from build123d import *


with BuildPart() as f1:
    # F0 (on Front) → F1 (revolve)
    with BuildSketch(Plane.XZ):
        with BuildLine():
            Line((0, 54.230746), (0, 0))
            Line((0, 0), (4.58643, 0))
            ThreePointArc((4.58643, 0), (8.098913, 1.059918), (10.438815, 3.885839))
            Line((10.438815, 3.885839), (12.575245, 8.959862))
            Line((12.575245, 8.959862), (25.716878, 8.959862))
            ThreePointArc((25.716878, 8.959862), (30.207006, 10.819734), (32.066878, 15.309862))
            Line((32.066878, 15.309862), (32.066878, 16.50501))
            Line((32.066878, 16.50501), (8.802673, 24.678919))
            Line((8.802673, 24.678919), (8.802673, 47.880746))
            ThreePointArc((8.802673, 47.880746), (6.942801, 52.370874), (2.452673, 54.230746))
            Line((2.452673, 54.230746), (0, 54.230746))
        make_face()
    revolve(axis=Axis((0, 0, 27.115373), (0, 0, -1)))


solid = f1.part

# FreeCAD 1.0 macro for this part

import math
import FreeCAD as App
import Part
import Sketcher
Q = App.Units.Quantity

doc = App.newDocument("Part")
params = doc.addObject("Spreadsheet::Sheet", "Params")
for row, (alias, value) in enumerate([
    ("sketch1_radius", "0.2499999 in"),
    ("sketch1_radius2", "0.25 in"),
    ("revolution_angle", "360 deg"),
], start=1):
    params.set(f"A{row}", alias)
    params.set(f"B{row}", "=" + value)
    params.setAlias(f"B{row}", alias)

body = doc.addObject("PartDesign::Body", "Body")

sketch1 = body.newObject("Sketcher::SketchObject", "Sketch")
sketch1.AttachmentSupport = (doc.getObject("XZ_Plane"), [""])
sketch1.MapMode = "FlatFace"
sketch1.addGeometry([
    Part.LineSegment(App.Vector(0, 54.2, 0), App.Vector(0, 0, 0)),
    Part.LineSegment(App.Vector(0, 0, 0), App.Vector(4.6, 0, 0)),
    Part.ArcOfCircle(Part.Circle(App.Vector(4.6, 6.3, 0), App.Vector(0, 0, 1), 6.3), math.radians(-90), math.radians(-23)),
    Part.LineSegment(App.Vector(10.4, 3.9, 0), App.Vector(12.6, 9, 0)),
    Part.LineSegment(App.Vector(12.6, 9, 0), App.Vector(25.7, 9, 0)),
    Part.ArcOfCircle(Part.Circle(App.Vector(25.7, 15.3, 0), App.Vector(0, 0, 1), 6.4), math.radians(-90), math.radians(0)),
    Part.LineSegment(App.Vector(32.1, 15.3, 0), App.Vector(32.1, 16.5, 0)),
    Part.LineSegment(App.Vector(32.1, 16.5, 0), App.Vector(8.8, 24.7, 0)),
    Part.LineSegment(App.Vector(8.8, 24.7, 0), App.Vector(8.8, 47.9, 0)),
    Part.ArcOfCircle(Part.Circle(App.Vector(2.5, 47.9, 0), App.Vector(0, 0, 1), 6.4), math.radians(0), math.radians(90)),
    Part.LineSegment(App.Vector(2.5, 54.2, 0), App.Vector(0, 54.2, 0)),
], False)
sketch1.addConstraint([
    Sketcher.Constraint("Coincident", 0, 2, 1, 1),
    Sketcher.Constraint("Tangent", 1, 2, 2, 1),
    Sketcher.Constraint("Tangent", 2, 2, 3, 1),
    Sketcher.Constraint("Coincident", 3, 2, 4, 1),
    Sketcher.Constraint("Tangent", 4, 2, 5, 1),
    Sketcher.Constraint("Tangent", 5, 2, 6, 1),
    Sketcher.Constraint("Coincident", 6, 2, 7, 1),
    Sketcher.Constraint("Coincident", 7, 2, 8, 1),
    Sketcher.Constraint("Tangent", 8, 2, 9, 1),
    Sketcher.Constraint("Tangent", 9, 2, 10, 1),
    Sketcher.Constraint("Coincident", 10, 2, 0, 1),
    Sketcher.Constraint("Vertical", 0),
    Sketcher.Constraint("Horizontal", 1),
    Sketcher.Constraint("Horizontal", 4),
    Sketcher.Constraint("Vertical", 6),
    Sketcher.Constraint("Vertical", 8),
    Sketcher.Constraint("Horizontal", 10),
    Sketcher.Constraint("Coincident", 0, 2, -1, 1),
    Sketcher.Constraint("Equal", 5, 9),
    Sketcher.Constraint("Radius", 2, Q("0.2499999 in")),
    Sketcher.Constraint("Radius", 5, Q("0.25 in")),
    Sketcher.Constraint("DistanceX", 1, 1, 1, 2, 4.58643),
    Sketcher.Constraint("DistanceX", 4, 1, 4, 2, 13.141633),
    Sketcher.Constraint("DistanceX", 10, 2, 10, 1, 2.452673),
    Sketcher.Constraint("DistanceY", 0, 2, 0, 1, 54.230746),
    Sketcher.Constraint("DistanceY", 6, 1, 6, 2, 1.195148),
    Sketcher.Constraint("DistanceY", 8, 1, 8, 2, 23.201827),
    Sketcher.Constraint("DistanceY", -1, 1, 2, 2, 3.885839),
    Sketcher.Constraint("DistanceY", -1, 1, 3, 2, 8.959862),
])
sketch1.setExpression("Constraints[19]", "Params.sketch1_radius")
sketch1.setExpression("Constraints[20]", "Params.sketch1_radius2")
revolution = body.newObject("PartDesign::Revolution", "Revolution")
revolution.Profile = sketch1
revolution.ReferenceAxis = (sketch1, ["V_Axis"])
revolution.setExpression("Angle", "Params.revolution_angle")

doc.recompute()
